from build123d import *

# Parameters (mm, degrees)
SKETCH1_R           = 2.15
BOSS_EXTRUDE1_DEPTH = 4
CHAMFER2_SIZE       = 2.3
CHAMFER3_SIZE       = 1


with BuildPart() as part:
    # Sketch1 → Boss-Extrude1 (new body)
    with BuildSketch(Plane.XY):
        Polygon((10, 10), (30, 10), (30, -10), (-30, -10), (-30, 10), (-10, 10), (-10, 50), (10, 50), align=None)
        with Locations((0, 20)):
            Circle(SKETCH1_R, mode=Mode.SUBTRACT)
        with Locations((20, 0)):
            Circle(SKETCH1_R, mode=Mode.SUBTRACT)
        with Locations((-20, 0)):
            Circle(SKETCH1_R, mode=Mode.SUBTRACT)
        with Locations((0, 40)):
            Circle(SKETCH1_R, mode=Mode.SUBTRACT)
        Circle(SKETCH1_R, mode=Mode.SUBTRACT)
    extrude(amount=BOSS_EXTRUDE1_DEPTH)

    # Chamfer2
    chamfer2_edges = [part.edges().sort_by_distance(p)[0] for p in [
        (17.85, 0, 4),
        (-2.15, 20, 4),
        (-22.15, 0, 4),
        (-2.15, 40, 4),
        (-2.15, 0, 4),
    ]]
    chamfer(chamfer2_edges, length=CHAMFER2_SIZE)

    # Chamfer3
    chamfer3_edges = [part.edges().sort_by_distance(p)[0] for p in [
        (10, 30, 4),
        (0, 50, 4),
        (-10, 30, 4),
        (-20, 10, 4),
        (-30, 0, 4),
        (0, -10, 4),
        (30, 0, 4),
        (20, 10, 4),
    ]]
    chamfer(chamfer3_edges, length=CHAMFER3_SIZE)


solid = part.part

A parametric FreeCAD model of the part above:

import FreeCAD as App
import Part
import Sketcher

V = App.Vector
Q = App.Units.Quantity


def edges_at(feature, points):
    """Names of the edges that pass closest to the given points."""
    edges = feature.Shape.Edges
    near = lambda p: min(range(len(edges)), key=lambda i: edges[i].distToShape(Part.Vertex(*p))[0])
    return sorted({f"Edge{near(p) + 1}" for p in points})

doc = App.newDocument("Part")
body = doc.addObject("PartDesign::Body", "Body")

# Sketch on XY plane
sketch1 = body.newObject("Sketcher::SketchObject", "Sketch")
sketch1.AttachmentSupport = (doc.getObject("XY_Plane"), [""])
sketch1.MapMode = "FlatFace"
sketch1.addGeometry(Part.LineSegment(V(30, 10, 0), V(10, 10, 0)), False)
sketch1.addGeometry(Part.LineSegment(V(10, 10, 0), V(10, 50, 0)), False)
sketch1.addGeometry(Part.LineSegment(V(10, 50, 0), V(-10, 50, 0)), False)
sketch1.addGeometry(Part.LineSegment(V(-10, 50, 0), V(-10, 10, 0)), False)
sketch1.addGeometry(Part.LineSegment(V(-10, 10, 0), V(-30, 10, 0)), False)
sketch1.addGeometry(Part.LineSegment(V(-30, 10, 0), V(-30, -10, 0)), False)
sketch1.addGeometry(Part.LineSegment(V(-30, -10, 0), V(30, -10, 0)), False)
sketch1.addGeometry(Part.LineSegment(V(30, -10, 0), V(30, 10, 0)), False)
sketch1.addGeometry(Part.Circle(V(20, 0, 0), V(0, 0, 1), 2.1), False)
sketch1.addGeometry(Part.Circle(V(0, 0, 0), V(0, 0, 1), 2.1), False)
sketch1.addGeometry(Part.Circle(V(-20, 0, 0), V(0, 0, 1), 2.1), False)
sketch1.addGeometry(Part.Circle(V(0, 20, 0), V(0, 0, 1), 2.1), False)
sketch1.addGeometry(Part.Circle(V(0, 40, 0), V(0, 0, 1), 2.1), False)
sketch1.addConstraint(Sketcher.Constraint("Coincident", 0, 2, 1, 1))
sketch1.addConstraint(Sketcher.Constraint("Coincident", 1, 2, 2, 1))
sketch1.addConstraint(Sketcher.Constraint("Coincident", 2, 2, 3, 1))
sketch1.addConstraint(Sketcher.Constraint("Coincident", 3, 2, 4, 1))
sketch1.addConstraint(Sketcher.Constraint("Coincident", 4, 2, 5, 1))
sketch1.addConstraint(Sketcher.Constraint("Coincident", 5, 2, 6, 1))
sketch1.addConstraint(Sketcher.Constraint("Coincident", 6, 2, 7, 1))
sketch1.addConstraint(Sketcher.Constraint("Coincident", 7, 2, 0, 1))
sketch1.addConstraint(Sketcher.Constraint("Horizontal", 0))
sketch1.addConstraint(Sketcher.Constraint("Vertical", 1))
sketch1.addConstraint(Sketcher.Constraint("Horizontal", 2))
sketch1.addConstraint(Sketcher.Constraint("Vertical", 3))
sketch1.addConstraint(Sketcher.Constraint("Horizontal", 4))
sketch1.addConstraint(Sketcher.Constraint("Vertical", 5))
sketch1.addConstraint(Sketcher.Constraint("Horizontal", 6))
sketch1.addConstraint(Sketcher.Constraint("Vertical", 7))
sketch1.addConstraint(Sketcher.Constraint("Coincident", 9, 3, -1, 1))
sketch1.addConstraint(Sketcher.Constraint("Equal", 8, 9))
sketch1.addConstraint(Sketcher.Constraint("Equal", 9, 10))
sketch1.addConstraint(Sketcher.Constraint("Equal", 10, 11))
sketch1.addConstraint(Sketcher.Constraint("Equal", 11, 12))
sketch1.addConstraint(Sketcher.Constraint("Symmetric", 8, 3, 10, 3, -1, 1))
sketch1.addConstraint(Sketcher.Constraint("Symmetric", 4, 2, 6, 2, -1, 1))
sketch1.addConstraint(Sketcher.Constraint("Symmetric", 0, 2, 3, 2, -2))
sketch1.addConstraint(Sketcher.Constraint("PointOnObject", 8, 3, -1))
sketch1.addConstraint(Sketcher.Constraint("PointOnObject", 11, 3, -2))
sketch1.addConstraint(Sketcher.Constraint("PointOnObject", 12, 3, -2))
sketch1.addConstraint(Sketcher.Constraint("Equal", 0, 2))
sketch1.addConstraint(Sketcher.Constraint("Equal", 4, 5))
sketch1.addConstraint(Sketcher.Constraint("Diameter", 8, Q("4.3 mm")))
sketch1.addConstraint(Sketcher.Constraint("DistanceX", 0, 2, 0, 1, Q("20 mm")))
sketch1.addConstraint(Sketcher.Constraint("DistanceY", 1, 1, 1, 2, Q("40 mm")))
sketch1.addConstraint(Sketcher.Constraint("DistanceX", -1, 1, 8, 3, Q("20 mm")))
sketch1.addConstraint(Sketcher.Constraint("DistanceY", -1, 1, 11, 3, Q("20 mm")))
sketch1.addConstraint(Sketcher.Constraint("DistanceY", -1, 1, 12, 3, Q("40 mm")))
pad1 = body.newObject("PartDesign::Pad", "Pad")
pad1.Profile = sketch1
pad1.Length = 4
doc.recompute()

chamfer = body.newObject("PartDesign::Chamfer", "Chamfer")
chamfer.Base = (pad1, edges_at(pad1, [
    (17.85, 0, 4),
    (-2.15, 20, 4),
    (-22.15, 0, 4),
    (-2.15, 40, 4),
    (-2.15, 0, 4),
]))
chamfer.Size = 2.3
doc.recompute()

chamfer2 = body.newObject("PartDesign::Chamfer", "Chamfer001")
chamfer2.Base = (chamfer, edges_at(chamfer, [
    (10, 30, 4),
    (0, 50, 4),
    (-10, 30, 4),
    (-20, 10, 4),
    (-30, 0, 4),
    (0, -10, 4),
    (30, 0, 4),
    (20, 10, 4),
]))
chamfer2.Size = 1

doc.recompute()
